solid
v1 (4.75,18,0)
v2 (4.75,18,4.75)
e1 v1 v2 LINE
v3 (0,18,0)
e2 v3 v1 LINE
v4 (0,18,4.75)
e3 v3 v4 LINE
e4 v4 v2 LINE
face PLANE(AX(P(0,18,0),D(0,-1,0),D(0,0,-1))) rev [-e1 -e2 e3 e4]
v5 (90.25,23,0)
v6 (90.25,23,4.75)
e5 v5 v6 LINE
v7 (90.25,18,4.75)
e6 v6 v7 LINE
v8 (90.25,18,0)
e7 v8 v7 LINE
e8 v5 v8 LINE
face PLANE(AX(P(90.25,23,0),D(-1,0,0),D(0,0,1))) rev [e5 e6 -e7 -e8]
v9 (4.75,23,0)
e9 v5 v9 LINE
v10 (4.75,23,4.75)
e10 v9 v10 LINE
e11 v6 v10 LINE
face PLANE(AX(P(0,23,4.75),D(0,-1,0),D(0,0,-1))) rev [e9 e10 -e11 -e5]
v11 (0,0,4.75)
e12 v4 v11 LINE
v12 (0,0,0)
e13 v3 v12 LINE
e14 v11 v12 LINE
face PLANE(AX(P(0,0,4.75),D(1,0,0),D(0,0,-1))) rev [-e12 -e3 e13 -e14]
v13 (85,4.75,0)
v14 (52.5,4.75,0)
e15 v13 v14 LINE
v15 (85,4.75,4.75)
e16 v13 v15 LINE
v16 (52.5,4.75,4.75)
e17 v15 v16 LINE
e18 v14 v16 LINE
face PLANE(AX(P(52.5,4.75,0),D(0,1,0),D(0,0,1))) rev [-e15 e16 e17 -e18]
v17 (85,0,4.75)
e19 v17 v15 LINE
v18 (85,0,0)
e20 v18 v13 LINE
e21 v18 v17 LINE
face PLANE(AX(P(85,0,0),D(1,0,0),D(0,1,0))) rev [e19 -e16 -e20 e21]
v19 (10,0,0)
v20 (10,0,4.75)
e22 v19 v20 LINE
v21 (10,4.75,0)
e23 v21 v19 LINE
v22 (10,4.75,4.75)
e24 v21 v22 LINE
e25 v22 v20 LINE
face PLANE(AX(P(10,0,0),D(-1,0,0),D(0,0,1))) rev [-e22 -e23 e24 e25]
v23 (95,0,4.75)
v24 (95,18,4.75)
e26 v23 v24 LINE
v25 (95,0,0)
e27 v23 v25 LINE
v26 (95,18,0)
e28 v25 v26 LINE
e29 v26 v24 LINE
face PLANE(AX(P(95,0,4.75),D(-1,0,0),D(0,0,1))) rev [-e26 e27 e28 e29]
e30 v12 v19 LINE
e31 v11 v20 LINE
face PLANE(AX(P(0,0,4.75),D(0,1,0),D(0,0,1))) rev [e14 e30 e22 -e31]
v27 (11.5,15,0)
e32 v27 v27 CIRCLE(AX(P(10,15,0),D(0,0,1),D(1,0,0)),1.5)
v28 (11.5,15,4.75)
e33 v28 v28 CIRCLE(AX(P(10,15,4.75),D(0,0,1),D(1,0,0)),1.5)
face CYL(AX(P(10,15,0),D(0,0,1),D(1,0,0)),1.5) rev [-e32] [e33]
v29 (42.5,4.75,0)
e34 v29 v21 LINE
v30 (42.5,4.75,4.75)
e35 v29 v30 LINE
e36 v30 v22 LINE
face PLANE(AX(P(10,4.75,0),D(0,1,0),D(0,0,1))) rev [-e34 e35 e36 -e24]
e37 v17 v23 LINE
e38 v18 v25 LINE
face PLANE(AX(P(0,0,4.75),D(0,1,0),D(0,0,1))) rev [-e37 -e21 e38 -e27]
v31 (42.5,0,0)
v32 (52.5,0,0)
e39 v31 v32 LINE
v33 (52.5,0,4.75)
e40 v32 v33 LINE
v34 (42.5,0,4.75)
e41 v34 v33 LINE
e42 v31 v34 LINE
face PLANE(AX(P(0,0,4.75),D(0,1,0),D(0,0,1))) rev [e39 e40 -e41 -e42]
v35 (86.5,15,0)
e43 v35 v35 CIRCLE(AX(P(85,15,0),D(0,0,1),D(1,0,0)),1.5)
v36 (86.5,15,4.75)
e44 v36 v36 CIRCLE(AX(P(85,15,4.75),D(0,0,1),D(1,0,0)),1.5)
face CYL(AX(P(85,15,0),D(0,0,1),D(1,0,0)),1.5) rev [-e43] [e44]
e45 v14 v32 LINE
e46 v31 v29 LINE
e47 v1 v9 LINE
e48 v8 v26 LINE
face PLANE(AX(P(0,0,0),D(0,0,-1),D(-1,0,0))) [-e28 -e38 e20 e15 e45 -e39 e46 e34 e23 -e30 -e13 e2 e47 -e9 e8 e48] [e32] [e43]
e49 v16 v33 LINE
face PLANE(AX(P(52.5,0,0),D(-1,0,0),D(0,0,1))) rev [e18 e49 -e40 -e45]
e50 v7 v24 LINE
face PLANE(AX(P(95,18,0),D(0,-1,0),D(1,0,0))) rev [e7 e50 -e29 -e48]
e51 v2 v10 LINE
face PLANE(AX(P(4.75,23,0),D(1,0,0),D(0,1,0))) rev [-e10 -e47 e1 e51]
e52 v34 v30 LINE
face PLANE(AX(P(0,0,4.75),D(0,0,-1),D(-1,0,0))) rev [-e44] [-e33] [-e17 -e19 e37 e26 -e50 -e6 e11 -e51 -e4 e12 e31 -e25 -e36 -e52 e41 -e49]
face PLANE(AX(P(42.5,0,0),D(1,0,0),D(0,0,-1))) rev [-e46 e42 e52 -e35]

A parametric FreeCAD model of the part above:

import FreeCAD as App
import Part
import Sketcher
from FreeCAD import Vector
Q = App.Units.Quantity

doc = App.newDocument("Part")
params = doc.addObject("Spreadsheet::Sheet", "Params")
for row, (alias, value) in enumerate([
    ("sketch1_width", "95 mm"),
    ("sketch1_height", "23 mm"),
    ("pad1_length", "4.75 mm"),
    ("sketch2_width", "32.5 mm"),
    ("sketch2_height", "4.75 mm"),
    ("sketch3_diameter", "3 mm"),
    ("sketch4_height", "5 mm"),
    ("sketch4_width", "4.75 mm"),
], start=1):
    params.set(f"A{row}", alias)
    params.set(f"B{row}", "=" + value)
    params.setAlias(f"B{row}", alias)

body = doc.addObject("PartDesign::Body", "Body")

sketch1 = body.newObject("Sketcher::SketchObject", "Sketch")
sketch1.AttachmentSupport = (doc.getObject("XY_Plane"), [""])
sketch1.MapMode = "FlatFace"
sketch1.addGeometry(Part.LineSegment(Vector(0, 23, 0), Vector(0, 0, 0)), False)
sketch1.addGeometry(Part.LineSegment(Vector(0, 0, 0), Vector(95, 0, 0)), False)
sketch1.addGeometry(Part.LineSegment(Vector(95, 0, 0), Vector(95, 23, 0)), False)
sketch1.addGeometry(Part.LineSegment(Vector(95, 23, 0), Vector(0, 23, 0)), False)
sketch1.addConstraint(Sketcher.Constraint("Coincident", 0, 2, 1, 1))
sketch1.addConstraint(Sketcher.Constraint("Coincident", 1, 2, 2, 1))
sketch1.addConstraint(Sketcher.Constraint("Coincident", 2, 2, 3, 1))
sketch1.addConstraint(Sketcher.Constraint("Coincident", 3, 2, 0, 1))
sketch1.addConstraint(Sketcher.Constraint("Vertical", 0))
sketch1.addConstraint(Sketcher.Constraint("Horizontal", 1))
sketch1.addConstraint(Sketcher.Constraint("Vertical", 2))
sketch1.addConstraint(Sketcher.Constraint("Horizontal", 3))
sketch1.addConstraint(Sketcher.Constraint("Coincident", 0, 2, -1, 1))
sketch1.addConstraint(Sketcher.Constraint("DistanceX", 1, 1, 1, 2, Q("95 mm")))
sketch1.addConstraint(Sketcher.Constraint("DistanceY", 0, 2, 0, 1, Q("23 mm")))
sketch1.setExpression("Constraints[9]", "Params.sketch1_width")
sketch1.setExpression("Constraints[10]", "Params.sketch1_height")
pad1 = body.newObject("PartDesign::Pad", "Pad")
pad1.Profile = sketch1
pad1.setExpression("Length", "Params.pad1_length")

sketch2 = body.newObject("Sketcher::SketchObject", "Sketch001")
sketch2.AttachmentSupport = (doc.getObject("XY_Plane"), [""])
sketch2.MapMode = "FlatFace"
sketch2.AttachmentOffset = App.Placement(Vector(0, 0, 4.75), App.Rotation())
sketch2.addGeometry(Part.LineSegment(Vector(10, 4.8, 0), Vector(10, 0, 0)), False)
sketch2.addGeometry(Part.LineSegment(Vector(10, 0, 0), Vector(42.5, 0, 0)), False)
sketch2.addGeometry(Part.LineSegment(Vector(42.5, 0, 0), Vector(42.5, 4.8, 0)), False)
sketch2.addGeometry(Part.LineSegment(Vector(42.5, 4.8, 0), Vector(10, 4.8, 0)), False)
sketch2.addGeometry(Part.LineSegment(Vector(52.5, 4.8, 0), Vector(52.5, 0, 0)), False)
sketch2.addGeometry(Part.LineSegment(Vector(52.5, 0, 0), Vector(85, 0, 0)), False)
sketch2.addGeometry(Part.LineSegment(Vector(85, 0, 0), Vector(85, 4.8, 0)), False)
sketch2.addGeometry(Part.LineSegment(Vector(85, 4.8, 0), Vector(52.5, 4.8, 0)), False)
sketch2.addConstraint(Sketcher.Constraint("Coincident", 0, 2, 1, 1))
sketch2.addConstraint(Sketcher.Constraint("Coincident", 1, 2, 2, 1))
sketch2.addConstraint(Sketcher.Constraint("Coincident", 2, 2, 3, 1))
sketch2.addConstraint(Sketcher.Constraint("Coincident", 3, 2, 0, 1))
sketch2.addConstraint(Sketcher.Constraint("Coincident", 4, 2, 5, 1))
sketch2.addConstraint(Sketcher.Constraint("Coincident", 5, 2, 6, 1))
sketch2.addConstraint(Sketcher.Constraint("Coincident", 6, 2, 7, 1))
sketch2.addConstraint(Sketcher.Constraint("Coincident", 7, 2, 4, 1))
sketch2.addConstraint(Sketcher.Constraint("Vertical", 0))
sketch2.addConstraint(Sketcher.Constraint("Horizontal", 1))
sketch2.addConstraint(Sketcher.Constraint("Vertical", 2))
sketch2.addConstraint(Sketcher.Constraint("Horizontal", 3))
sketch2.addConstraint(Sketcher.Constraint("Vertical", 4))
sketch2.addConstraint(Sketcher.Constraint("Horizontal", 5))
sketch2.addConstraint(Sketcher.Constraint("Vertical", 6))
sketch2.addConstraint(Sketcher.Constraint("Horizontal", 7))
sketch2.addConstraint(Sketcher.Constraint("PointOnObject", 0, 2, -1))
sketch2.addConstraint(Sketcher.Constraint("PointOnObject", 4, 2, -1))
sketch2.addConstraint(Sketcher.Constraint("Horizontal", 3, 2, 6, 2))
sketch2.addConstraint(Sketcher.Constraint("Equal", 3, 5))
sketch2.addConstraint(Sketcher.Constraint("DistanceX", 1, 1, 1, 2, Q("32.5 mm")))
sketch2.addConstraint(Sketcher.Constraint("DistanceX", -1, 1, 0, 2, Q("10 mm")))
sketch2.addConstraint(Sketcher.Constraint("DistanceX", -1, 1, 5, 2, Q("85 mm")))
sketch2.addConstraint(Sketcher.Constraint("DistanceY", 0, 2, 0, 1, Q("4.75 mm")))
sketch2.setExpression("Constraints[20]", "Params.sketch2_width")
sketch2.setExpression("Constraints[23]", "Params.sketch2_height")
pocket1 = body.newObject("PartDesign::Pocket", "Pocket")
pocket1.Profile = sketch2
pocket1.Type = "ThroughAll"

sketch3 = body.newObject("Sketcher::SketchObject", "Sketch002")
sketch3.AttachmentSupport = (doc.getObject("XY_Plane"), [""])
sketch3.MapMode = "FlatFace"
sketch3.AttachmentOffset = App.Placement(Vector(0, 0, 4.75), App.Rotation())
sketch3.addGeometry(Part.Circle(Vector(10, 15, 0), Vector(0, 0, 1), 1.5), False)
sketch3.addGeometry(Part.Circle(Vector(85, 15, 0), Vector(0, 0, 1), 1.5), False)
sketch3.addConstraint(Sketcher.Constraint("Equal", 0, 1))
sketch3.addConstraint(Sketcher.Constraint("Horizontal", 0, 3, 1, 3))
sketch3.addConstraint(Sketcher.Constraint("Diameter", 0, Q("3 mm")))
sketch3.addConstraint(Sketcher.Constraint("DistanceX", -1, 1, 0, 3, Q("10 mm")))
sketch3.addConstraint(Sketcher.Constraint("DistanceY", -1, 1, 0, 3, Q("15 mm")))
sketch3.addConstraint(Sketcher.Constraint("DistanceX", -1, 1, 1, 3, Q("85 mm")))
sketch3.setExpression("Constraints[2]", "Params.sketch3_diameter")
pocket2 = body.newObject("PartDesign::Pocket", "Pocket001")
pocket2.Profile = sketch3
pocket2.Type = "ThroughAll"

sketch4 = body.newObject("Sketcher::SketchObject", "Sketch003")
sketch4.AttachmentSupport = (doc.getObject("XY_Plane"), [""])
sketch4.MapMode = "FlatFace"
sketch4.AttachmentOffset = App.Placement(Vector(0, 0, 4.75), App.Rotation())
sketch4.addGeometry(Part.LineSegment(Vector(0, 23, 0), Vector(0, 18, 0)), False)
sketch4.addGeometry(Part.LineSegment(Vector(0, 18, 0), Vector(4.8, 18, 0)), False)
sketch4.addGeometry(Part.LineSegment(Vector(4.8, 18, 0), Vector(4.8, 23, 0)), False)
sketch4.addGeometry(Part.LineSegment(Vector(4.8, 23, 0), Vector(0, 23, 0)), False)
sketch4.addGeometry(Part.LineSegment(Vector(90.2, 23, 0), Vector(90.2, 18, 0)), False)
sketch4.addGeometry(Part.LineSegment(Vector(90.2, 18, 0), Vector(95, 18, 0)), False)
sketch4.addGeometry(Part.LineSegment(Vector(95, 18, 0), Vector(95, 23, 0)), False)
sketch4.addGeometry(Part.LineSegment(Vector(95, 23, 0), Vector(90.2, 23, 0)), False)
sketch4.addConstraint(Sketcher.Constraint("Coincident", 0, 2, 1, 1))
sketch4.addConstraint(Sketcher.Constraint("Coincident", 1, 2, 2, 1))
sketch4.addConstraint(Sketcher.Constraint("Coincident", 2, 2, 3, 1))
sketch4.addConstraint(Sketcher.Constraint("Coincident", 3, 2, 0, 1))
sketch4.addConstraint(Sketcher.Constraint("Coincident", 4, 2, 5, 1))
sketch4.addConstraint(Sketcher.Constraint("Coincident", 5, 2, 6, 1))
sketch4.addConstraint(Sketcher.Constraint("Coincident", 6, 2, 7, 1))
sketch4.addConstraint(Sketcher.Constraint("Coincident", 7, 2, 4, 1))
sketch4.addConstraint(Sketcher.Constraint("Vertical", 0))
sketch4.addConstraint(Sketcher.Constraint("Horizontal", 1))
sketch4.addConstraint(Sketcher.Constraint("Vertical", 2))
sketch4.addConstraint(Sketcher.Constraint("Horizontal", 3))
sketch4.addConstraint(Sketcher.Constraint("Vertical", 4))
sketch4.addConstraint(Sketcher.Constraint("Horizontal", 5))
sketch4.addConstraint(Sketcher.Constraint("Vertical", 6))
sketch4.addConstraint(Sketcher.Constraint("Horizontal", 7))
sketch4.addConstraint(Sketcher.Constraint("PointOnObject", 0, 2, -2))
sketch4.addConstraint(Sketcher.Constraint("Horizontal", 1, 2, 4, 2))
sketch4.addConstraint(Sketcher.Constraint("Horizontal", 3, 2, 6, 2))
sketch4.addConstraint(Sketcher.Constraint("Equal", 3, 5))
sketch4.addConstraint(Sketcher.Constraint("DistanceY", 0, 2, 0, 1, Q("5 mm")))
sketch4.addConstraint(Sketcher.Constraint("DistanceY", -1, 1, 0, 2, Q("18 mm")))
sketch4.addConstraint(Sketcher.Constraint("DistanceX", -1, 1, 5, 2, Q("95 mm")))
sketch4.addConstraint(Sketcher.Constraint("DistanceX", 1, 1, 1, 2, Q("4.75 mm")))
sketch4.setExpression("Constraints[20]", "Params.sketch4_height")
sketch4.setExpression("Constraints[23]", "Params.sketch4_width")
pocket3 = body.newObject("PartDesign::Pocket", "Pocket002")
pocket3.Profile = sketch4
pocket3.Type = "ThroughAll"

doc.recompute()
